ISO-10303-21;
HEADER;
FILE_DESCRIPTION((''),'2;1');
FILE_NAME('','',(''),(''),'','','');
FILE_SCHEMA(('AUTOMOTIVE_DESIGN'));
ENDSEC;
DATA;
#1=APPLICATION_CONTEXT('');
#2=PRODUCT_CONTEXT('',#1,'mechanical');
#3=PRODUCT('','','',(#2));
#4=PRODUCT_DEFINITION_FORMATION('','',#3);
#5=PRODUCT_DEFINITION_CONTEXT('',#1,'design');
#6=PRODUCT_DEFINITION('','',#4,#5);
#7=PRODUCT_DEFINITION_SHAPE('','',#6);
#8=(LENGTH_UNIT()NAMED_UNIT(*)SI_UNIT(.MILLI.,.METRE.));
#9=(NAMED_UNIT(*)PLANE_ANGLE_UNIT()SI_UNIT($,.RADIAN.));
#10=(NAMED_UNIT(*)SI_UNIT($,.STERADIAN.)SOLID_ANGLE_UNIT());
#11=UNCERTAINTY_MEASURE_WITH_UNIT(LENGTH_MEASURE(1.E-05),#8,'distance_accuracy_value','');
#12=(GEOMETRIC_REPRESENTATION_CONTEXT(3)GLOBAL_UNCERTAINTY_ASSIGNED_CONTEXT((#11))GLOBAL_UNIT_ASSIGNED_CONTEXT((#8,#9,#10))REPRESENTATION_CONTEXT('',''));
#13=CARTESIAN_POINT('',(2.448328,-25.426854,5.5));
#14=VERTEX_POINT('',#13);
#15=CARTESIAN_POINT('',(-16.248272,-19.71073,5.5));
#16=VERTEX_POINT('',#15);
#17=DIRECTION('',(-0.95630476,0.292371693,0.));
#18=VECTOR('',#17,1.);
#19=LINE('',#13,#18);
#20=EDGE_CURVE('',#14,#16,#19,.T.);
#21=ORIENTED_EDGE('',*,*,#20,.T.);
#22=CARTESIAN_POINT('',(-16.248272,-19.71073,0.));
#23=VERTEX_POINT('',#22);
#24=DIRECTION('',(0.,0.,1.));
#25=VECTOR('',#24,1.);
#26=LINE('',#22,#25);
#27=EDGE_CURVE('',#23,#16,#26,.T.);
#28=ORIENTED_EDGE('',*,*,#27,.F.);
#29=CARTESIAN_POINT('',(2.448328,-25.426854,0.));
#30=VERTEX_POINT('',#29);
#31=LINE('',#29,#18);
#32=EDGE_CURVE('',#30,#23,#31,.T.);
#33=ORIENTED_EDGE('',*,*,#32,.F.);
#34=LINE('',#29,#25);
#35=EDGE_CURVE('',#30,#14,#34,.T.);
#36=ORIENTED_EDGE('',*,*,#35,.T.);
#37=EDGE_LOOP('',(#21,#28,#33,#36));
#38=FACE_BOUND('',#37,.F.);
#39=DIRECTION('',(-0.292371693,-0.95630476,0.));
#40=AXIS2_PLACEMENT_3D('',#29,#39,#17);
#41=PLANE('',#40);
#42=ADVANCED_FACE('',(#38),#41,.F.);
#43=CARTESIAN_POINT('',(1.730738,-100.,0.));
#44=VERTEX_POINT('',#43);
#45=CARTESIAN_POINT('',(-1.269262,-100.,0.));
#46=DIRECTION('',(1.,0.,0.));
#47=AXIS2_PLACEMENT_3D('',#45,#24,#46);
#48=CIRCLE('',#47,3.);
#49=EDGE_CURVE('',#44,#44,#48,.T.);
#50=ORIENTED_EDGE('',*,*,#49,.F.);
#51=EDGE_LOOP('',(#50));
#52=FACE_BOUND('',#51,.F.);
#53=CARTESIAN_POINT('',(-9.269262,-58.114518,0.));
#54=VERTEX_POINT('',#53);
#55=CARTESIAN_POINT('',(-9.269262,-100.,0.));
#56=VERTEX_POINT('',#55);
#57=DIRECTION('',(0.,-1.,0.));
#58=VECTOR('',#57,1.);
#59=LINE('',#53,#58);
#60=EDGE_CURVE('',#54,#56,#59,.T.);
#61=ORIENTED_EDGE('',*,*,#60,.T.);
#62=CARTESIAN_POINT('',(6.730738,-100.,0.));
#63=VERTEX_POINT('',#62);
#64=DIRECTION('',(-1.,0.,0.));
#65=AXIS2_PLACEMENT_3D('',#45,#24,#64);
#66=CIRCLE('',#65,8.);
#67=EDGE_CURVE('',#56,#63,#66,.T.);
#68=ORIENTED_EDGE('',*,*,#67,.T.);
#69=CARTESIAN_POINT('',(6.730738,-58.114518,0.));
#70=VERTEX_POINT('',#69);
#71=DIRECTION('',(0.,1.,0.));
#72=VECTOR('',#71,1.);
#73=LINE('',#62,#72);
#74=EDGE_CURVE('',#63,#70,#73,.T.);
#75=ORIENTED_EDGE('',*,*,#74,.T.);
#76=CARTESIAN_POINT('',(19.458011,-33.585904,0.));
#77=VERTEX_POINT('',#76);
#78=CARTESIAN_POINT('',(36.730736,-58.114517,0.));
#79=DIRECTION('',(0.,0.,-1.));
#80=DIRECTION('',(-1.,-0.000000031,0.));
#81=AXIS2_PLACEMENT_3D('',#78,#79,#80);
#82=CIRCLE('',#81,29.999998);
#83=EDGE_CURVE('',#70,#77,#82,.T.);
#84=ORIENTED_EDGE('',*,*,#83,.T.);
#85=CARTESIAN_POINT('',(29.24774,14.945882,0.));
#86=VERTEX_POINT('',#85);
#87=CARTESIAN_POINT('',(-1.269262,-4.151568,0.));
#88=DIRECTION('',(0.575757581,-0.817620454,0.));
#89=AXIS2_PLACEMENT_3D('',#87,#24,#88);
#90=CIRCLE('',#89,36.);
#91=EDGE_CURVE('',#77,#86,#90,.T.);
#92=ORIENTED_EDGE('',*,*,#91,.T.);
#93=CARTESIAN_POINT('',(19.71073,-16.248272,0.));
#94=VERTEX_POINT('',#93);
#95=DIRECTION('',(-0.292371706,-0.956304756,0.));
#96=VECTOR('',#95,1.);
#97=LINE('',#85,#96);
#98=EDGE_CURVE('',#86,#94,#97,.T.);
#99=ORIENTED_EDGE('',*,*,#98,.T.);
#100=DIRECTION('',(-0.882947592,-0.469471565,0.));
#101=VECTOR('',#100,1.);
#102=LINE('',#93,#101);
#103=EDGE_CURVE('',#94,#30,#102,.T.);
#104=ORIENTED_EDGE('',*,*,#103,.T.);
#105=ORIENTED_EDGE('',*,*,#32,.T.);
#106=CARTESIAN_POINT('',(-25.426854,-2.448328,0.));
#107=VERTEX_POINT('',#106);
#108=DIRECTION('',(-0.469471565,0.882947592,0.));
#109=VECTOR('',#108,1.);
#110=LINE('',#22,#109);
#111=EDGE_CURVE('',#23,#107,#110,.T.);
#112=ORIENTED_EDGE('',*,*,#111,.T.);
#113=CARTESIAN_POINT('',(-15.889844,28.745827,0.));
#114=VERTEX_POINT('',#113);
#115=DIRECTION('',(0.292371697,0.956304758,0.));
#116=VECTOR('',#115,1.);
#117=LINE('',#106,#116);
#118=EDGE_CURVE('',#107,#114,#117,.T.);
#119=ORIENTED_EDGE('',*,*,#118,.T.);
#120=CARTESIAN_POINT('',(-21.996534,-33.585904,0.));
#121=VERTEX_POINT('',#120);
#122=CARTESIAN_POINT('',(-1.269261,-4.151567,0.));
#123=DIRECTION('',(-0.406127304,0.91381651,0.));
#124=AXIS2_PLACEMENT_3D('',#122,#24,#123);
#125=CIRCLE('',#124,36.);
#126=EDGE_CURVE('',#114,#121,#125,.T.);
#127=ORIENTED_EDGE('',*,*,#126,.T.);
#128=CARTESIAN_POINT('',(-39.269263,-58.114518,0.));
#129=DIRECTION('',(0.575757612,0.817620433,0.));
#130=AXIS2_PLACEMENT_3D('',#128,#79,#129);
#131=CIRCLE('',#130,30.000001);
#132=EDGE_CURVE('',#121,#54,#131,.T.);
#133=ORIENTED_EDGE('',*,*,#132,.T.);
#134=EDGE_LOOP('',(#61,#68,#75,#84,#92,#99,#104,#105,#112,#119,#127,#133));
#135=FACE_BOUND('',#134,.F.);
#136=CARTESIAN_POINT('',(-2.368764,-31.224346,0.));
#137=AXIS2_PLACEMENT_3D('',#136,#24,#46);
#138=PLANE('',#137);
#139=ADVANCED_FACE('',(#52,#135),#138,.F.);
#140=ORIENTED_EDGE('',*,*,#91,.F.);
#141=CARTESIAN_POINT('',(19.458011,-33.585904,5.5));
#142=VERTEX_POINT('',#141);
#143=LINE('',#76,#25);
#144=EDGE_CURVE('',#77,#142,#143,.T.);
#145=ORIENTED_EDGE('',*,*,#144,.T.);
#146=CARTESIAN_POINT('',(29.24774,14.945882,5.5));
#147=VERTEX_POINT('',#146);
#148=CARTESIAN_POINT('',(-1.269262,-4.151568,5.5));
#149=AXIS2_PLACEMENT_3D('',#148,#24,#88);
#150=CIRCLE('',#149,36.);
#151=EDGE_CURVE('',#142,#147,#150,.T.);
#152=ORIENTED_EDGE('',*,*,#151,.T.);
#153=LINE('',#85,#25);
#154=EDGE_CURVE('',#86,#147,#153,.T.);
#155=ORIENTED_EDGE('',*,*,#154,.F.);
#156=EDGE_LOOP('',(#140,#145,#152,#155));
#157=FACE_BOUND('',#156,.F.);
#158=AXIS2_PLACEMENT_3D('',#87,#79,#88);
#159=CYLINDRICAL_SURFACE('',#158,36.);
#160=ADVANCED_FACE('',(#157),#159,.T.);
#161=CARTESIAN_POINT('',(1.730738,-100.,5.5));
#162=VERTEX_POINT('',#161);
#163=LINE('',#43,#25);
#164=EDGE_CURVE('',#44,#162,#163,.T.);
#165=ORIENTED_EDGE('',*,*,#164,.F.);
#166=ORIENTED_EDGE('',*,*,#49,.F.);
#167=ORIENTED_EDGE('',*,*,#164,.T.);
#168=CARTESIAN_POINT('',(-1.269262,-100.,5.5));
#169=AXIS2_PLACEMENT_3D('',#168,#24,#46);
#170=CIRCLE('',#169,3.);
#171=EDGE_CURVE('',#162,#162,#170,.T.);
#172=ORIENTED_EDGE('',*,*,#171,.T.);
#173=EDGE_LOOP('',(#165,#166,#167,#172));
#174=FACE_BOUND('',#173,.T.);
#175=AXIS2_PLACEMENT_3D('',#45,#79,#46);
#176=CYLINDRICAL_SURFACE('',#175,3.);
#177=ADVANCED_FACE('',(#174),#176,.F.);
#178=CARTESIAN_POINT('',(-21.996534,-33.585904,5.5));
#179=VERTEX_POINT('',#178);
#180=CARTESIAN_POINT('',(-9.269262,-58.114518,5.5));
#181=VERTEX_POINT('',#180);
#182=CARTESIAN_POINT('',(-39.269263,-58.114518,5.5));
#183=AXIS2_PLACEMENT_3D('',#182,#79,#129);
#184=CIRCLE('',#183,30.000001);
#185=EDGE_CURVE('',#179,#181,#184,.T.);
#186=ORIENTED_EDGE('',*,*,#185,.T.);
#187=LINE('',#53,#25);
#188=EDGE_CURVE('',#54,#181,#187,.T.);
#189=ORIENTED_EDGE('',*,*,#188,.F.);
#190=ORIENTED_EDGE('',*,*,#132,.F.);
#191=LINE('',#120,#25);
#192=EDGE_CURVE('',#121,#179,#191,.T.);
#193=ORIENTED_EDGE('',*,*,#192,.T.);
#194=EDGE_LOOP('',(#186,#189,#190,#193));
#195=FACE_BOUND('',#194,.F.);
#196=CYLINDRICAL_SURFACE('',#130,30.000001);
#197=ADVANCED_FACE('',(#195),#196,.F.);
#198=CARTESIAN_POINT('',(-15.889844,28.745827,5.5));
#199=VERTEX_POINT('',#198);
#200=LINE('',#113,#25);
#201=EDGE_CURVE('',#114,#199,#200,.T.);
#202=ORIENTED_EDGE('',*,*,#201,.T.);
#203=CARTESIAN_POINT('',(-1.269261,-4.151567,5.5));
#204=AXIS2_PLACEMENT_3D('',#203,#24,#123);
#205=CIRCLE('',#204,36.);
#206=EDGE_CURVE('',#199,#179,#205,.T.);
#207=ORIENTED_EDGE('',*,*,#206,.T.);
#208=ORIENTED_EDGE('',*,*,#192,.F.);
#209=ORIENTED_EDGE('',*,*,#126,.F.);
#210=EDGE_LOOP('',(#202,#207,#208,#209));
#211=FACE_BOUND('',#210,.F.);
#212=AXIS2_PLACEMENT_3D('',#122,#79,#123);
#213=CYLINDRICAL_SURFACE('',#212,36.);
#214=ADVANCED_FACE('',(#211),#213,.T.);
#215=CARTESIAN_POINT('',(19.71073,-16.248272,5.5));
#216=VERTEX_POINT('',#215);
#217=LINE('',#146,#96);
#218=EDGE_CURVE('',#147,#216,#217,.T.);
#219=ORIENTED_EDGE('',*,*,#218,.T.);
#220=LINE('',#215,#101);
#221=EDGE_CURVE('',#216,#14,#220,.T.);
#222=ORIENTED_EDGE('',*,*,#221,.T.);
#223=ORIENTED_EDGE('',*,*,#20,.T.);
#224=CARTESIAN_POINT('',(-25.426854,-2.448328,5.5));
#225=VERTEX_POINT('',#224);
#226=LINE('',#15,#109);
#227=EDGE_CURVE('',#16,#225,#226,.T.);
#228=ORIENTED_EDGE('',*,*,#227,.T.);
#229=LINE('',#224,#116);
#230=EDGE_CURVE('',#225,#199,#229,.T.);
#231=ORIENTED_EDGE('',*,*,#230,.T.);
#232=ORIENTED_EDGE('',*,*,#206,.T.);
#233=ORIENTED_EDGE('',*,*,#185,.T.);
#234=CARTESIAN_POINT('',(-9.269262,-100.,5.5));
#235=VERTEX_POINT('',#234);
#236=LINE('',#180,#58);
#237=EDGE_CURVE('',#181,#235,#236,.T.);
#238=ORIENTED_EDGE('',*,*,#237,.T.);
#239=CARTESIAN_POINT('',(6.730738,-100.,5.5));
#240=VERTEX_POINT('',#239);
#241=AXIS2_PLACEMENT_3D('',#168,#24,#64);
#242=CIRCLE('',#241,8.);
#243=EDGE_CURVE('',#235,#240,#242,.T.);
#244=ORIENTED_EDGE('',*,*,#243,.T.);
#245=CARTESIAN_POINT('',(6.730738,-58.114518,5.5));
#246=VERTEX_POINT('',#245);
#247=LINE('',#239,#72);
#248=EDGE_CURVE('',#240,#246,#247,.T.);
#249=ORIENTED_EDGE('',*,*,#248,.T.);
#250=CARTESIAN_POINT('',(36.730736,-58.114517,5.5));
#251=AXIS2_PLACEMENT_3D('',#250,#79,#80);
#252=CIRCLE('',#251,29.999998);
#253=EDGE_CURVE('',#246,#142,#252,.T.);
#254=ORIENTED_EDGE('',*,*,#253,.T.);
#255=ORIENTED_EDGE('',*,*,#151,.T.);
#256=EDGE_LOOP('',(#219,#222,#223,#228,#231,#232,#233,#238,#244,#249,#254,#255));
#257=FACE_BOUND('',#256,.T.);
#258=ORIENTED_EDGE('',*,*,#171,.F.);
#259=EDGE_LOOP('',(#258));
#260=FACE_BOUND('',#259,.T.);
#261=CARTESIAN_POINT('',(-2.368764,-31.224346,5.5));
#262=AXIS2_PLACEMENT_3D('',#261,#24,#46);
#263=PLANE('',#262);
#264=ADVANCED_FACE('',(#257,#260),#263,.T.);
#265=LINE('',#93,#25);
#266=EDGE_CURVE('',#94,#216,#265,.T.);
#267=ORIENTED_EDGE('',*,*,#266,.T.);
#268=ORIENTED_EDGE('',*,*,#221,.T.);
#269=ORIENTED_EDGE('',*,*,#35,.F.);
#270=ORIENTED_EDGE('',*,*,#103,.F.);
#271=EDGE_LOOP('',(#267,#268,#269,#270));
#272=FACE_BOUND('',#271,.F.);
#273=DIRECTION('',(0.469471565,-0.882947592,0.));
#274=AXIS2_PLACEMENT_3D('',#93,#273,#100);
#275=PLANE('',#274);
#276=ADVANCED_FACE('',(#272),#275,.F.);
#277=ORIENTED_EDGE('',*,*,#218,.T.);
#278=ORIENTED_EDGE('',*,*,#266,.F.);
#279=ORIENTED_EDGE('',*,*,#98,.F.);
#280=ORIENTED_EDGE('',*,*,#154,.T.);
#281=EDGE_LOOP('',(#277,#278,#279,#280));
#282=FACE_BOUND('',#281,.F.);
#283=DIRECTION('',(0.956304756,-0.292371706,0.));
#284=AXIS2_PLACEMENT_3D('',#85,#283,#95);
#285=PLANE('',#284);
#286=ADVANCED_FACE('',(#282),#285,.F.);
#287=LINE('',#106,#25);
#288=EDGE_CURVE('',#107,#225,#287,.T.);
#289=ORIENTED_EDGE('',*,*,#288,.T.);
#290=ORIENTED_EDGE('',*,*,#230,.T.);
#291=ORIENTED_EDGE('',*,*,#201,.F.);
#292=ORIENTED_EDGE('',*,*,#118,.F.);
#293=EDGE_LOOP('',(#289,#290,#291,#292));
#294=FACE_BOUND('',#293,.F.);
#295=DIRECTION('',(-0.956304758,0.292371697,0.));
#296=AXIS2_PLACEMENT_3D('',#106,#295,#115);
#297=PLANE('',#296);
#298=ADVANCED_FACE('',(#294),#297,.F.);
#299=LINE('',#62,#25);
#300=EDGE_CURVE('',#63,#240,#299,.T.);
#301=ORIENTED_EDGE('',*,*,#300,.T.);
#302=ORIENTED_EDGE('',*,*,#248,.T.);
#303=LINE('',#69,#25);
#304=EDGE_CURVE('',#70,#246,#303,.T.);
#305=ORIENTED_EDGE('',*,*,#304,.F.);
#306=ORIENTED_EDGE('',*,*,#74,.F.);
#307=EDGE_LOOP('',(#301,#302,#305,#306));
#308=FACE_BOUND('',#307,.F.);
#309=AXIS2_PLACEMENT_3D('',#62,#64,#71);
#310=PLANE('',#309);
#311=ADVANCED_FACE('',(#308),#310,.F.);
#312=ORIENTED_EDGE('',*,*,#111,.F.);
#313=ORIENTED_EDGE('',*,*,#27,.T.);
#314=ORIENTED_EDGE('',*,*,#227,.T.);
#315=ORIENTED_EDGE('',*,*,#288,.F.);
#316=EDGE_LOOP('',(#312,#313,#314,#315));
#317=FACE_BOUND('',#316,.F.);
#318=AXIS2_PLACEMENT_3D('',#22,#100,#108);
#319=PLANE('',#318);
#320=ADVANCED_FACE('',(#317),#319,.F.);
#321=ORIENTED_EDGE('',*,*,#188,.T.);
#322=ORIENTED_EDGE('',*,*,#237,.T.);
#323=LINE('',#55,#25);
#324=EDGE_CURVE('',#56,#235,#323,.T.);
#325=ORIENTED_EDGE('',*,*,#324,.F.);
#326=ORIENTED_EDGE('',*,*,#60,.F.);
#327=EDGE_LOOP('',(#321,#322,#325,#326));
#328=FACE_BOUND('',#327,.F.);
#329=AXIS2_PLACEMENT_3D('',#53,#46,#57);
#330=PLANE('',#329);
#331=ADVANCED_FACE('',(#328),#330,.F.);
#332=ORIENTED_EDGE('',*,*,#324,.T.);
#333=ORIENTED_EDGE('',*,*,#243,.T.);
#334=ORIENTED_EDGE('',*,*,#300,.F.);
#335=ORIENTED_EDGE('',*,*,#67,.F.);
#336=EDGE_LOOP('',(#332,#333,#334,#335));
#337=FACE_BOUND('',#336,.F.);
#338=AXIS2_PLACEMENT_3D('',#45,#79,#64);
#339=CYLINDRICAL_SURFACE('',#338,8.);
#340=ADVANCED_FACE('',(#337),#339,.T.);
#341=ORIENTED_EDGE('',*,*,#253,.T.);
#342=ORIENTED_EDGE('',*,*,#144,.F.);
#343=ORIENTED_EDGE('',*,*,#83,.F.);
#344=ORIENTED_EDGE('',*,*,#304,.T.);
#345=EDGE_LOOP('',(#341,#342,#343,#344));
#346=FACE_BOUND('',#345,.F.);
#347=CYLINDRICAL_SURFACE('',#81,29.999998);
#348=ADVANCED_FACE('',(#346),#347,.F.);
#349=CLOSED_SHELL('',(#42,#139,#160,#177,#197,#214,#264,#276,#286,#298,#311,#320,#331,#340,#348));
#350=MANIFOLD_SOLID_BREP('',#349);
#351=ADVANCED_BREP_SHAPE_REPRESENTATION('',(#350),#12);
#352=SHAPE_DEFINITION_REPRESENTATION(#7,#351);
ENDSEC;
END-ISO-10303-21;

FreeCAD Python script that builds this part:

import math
import FreeCAD as App
import Part
import Sketcher
from FreeCAD import Vector
Q = App.Units.Quantity

doc = App.newDocument("Part")
body = doc.addObject("PartDesign::Body", "Body")

sketch1 = doc.addObject("Sketcher::SketchObject", "Sketch")
body.addObject(sketch1)
sketch1.AttachmentSupport = (doc.XY_Plane, [""])
sketch1.MapMode = "FlatFace"
sketch1.addGeometry([
    Part.LineSegment(Vector(-9.3, -58.1, 0), Vector(-9.3, -100, 0)),
    Part.ArcOfCircle(Part.Circle(Vector(-1.3, -100, 0), Vector(0, 0, 1), 8), math.radians(180), math.radians(360)),
    Part.LineSegment(Vector(6.7, -100, 0), Vector(6.7, -58.1, 0)),
    Part.ArcOfCircle(Part.Circle(Vector(36.7, -58.1, 0), Vector(0, 0, 1), 30), math.radians(125), math.radians(180)),
    Part.ArcOfCircle(Part.Circle(Vector(-1.3, -4.2, 0), Vector(0, 0, 1), 36), math.radians(-55), math.radians(32)),
    Part.LineSegment(Vector(29.2, 14.9, 0), Vector(19.7, -16.2, 0)),
    Part.LineSegment(Vector(19.7, -16.2, 0), Vector(2.4, -25.4, 0)),
    Part.LineSegment(Vector(2.4, -25.4, 0), Vector(-16.2, -19.7, 0)),
    Part.LineSegment(Vector(-16.2, -19.7, 0), Vector(-25.4, -2.4, 0)),
    Part.LineSegment(Vector(-25.4, -2.4, 0), Vector(-15.9, 28.7, 0)),
    Part.ArcOfCircle(Part.Circle(Vector(-1.3, -4.2, 0), Vector(0, 0, 1), 36), math.radians(114), math.radians(235)),
    Part.ArcOfCircle(Part.Circle(Vector(-39.3, -58.1, 0), Vector(0, 0, 1), 30), math.radians(0), math.radians(55)),
    Part.Circle(Vector(-1.3, -100, 0), Vector(0, 0, 1), 3),
], False)
sketch1.addConstraint([
    Sketcher.Constraint("Tangent", 0, 2, 1, 1),
    Sketcher.Constraint("Tangent", 1, 2, 2, 1),
    Sketcher.Constraint("Tangent", 2, 2, 3, 2),
    Sketcher.Constraint("Tangent", 3, 1, 4, 1),
    Sketcher.Constraint("Coincident", 4, 2, 5, 1),
    Sketcher.Constraint("Coincident", 5, 2, 6, 1),
    Sketcher.Constraint("Coincident", 6, 2, 7, 1),
    Sketcher.Constraint("Coincident", 7, 2, 8, 1),
    Sketcher.Constraint("Coincident", 8, 2, 9, 1),
    Sketcher.Constraint("Coincident", 9, 2, 10, 1),
    Sketcher.Constraint("Tangent", 10, 2, 11, 2),
    Sketcher.Constraint("Tangent", 11, 1, 0, 1),
    Sketcher.Constraint("Vertical", 0),
    Sketcher.Constraint("Vertical", 2),
    Sketcher.Constraint("Coincident", 10, 3, 4, 3),
    Sketcher.Constraint("Coincident", 12, 3, 1, 3),
    Sketcher.Constraint("Equal", 4, 10),
    Sketcher.Constraint("Perpendicular", 5, 7),
    Sketcher.Constraint("Perpendicular", 6, 8),
    Sketcher.Constraint("Perpendicular", 7, 9),
    Sketcher.Constraint("Horizontal", 3, 3, 11, 3),
    Sketcher.Constraint("Horizontal", 3, 1, 10, 2),
    Sketcher.Constraint("Equal", 6, 7),
    Sketcher.Constraint("Equal", 7, 8),
    Sketcher.Constraint("Equal", 5, 9),
    Sketcher.Constraint("Diameter", 12, Q("6 mm")),
    Sketcher.Constraint("Radius", 1, Q("8 mm")),
    Sketcher.Constraint("Radius", 3, Q("29.999998 mm")),
    Sketcher.Constraint("Radius", 4, Q("36 mm")),
    Sketcher.Constraint("Angle", 5, Q("-107 deg")),
    Sketcher.Constraint("Angle", 6, Q("-152 deg")),
    Sketcher.Constraint("DistanceY", 1, 3, -1, 1, Q("100 mm")),
    Sketcher.Constraint("DistanceX", 10, 3, 4, 2, Q("30.517001 mm")),
    Sketcher.Constraint("Distance", 5, Q("32.61947 mm")),
    Sketcher.Constraint("DistanceY", 0, 2, 0, 1, Q("41.885482 mm")),
    Sketcher.Constraint("DistanceX", 1, 3, -1, 1, Q("1.269262 mm")),
])
pad1 = doc.addObject("PartDesign::Pad", "Pad")
body.addObject(pad1)
pad1.Profile = sketch1
pad1.Length = 5.5

doc.recompute()
